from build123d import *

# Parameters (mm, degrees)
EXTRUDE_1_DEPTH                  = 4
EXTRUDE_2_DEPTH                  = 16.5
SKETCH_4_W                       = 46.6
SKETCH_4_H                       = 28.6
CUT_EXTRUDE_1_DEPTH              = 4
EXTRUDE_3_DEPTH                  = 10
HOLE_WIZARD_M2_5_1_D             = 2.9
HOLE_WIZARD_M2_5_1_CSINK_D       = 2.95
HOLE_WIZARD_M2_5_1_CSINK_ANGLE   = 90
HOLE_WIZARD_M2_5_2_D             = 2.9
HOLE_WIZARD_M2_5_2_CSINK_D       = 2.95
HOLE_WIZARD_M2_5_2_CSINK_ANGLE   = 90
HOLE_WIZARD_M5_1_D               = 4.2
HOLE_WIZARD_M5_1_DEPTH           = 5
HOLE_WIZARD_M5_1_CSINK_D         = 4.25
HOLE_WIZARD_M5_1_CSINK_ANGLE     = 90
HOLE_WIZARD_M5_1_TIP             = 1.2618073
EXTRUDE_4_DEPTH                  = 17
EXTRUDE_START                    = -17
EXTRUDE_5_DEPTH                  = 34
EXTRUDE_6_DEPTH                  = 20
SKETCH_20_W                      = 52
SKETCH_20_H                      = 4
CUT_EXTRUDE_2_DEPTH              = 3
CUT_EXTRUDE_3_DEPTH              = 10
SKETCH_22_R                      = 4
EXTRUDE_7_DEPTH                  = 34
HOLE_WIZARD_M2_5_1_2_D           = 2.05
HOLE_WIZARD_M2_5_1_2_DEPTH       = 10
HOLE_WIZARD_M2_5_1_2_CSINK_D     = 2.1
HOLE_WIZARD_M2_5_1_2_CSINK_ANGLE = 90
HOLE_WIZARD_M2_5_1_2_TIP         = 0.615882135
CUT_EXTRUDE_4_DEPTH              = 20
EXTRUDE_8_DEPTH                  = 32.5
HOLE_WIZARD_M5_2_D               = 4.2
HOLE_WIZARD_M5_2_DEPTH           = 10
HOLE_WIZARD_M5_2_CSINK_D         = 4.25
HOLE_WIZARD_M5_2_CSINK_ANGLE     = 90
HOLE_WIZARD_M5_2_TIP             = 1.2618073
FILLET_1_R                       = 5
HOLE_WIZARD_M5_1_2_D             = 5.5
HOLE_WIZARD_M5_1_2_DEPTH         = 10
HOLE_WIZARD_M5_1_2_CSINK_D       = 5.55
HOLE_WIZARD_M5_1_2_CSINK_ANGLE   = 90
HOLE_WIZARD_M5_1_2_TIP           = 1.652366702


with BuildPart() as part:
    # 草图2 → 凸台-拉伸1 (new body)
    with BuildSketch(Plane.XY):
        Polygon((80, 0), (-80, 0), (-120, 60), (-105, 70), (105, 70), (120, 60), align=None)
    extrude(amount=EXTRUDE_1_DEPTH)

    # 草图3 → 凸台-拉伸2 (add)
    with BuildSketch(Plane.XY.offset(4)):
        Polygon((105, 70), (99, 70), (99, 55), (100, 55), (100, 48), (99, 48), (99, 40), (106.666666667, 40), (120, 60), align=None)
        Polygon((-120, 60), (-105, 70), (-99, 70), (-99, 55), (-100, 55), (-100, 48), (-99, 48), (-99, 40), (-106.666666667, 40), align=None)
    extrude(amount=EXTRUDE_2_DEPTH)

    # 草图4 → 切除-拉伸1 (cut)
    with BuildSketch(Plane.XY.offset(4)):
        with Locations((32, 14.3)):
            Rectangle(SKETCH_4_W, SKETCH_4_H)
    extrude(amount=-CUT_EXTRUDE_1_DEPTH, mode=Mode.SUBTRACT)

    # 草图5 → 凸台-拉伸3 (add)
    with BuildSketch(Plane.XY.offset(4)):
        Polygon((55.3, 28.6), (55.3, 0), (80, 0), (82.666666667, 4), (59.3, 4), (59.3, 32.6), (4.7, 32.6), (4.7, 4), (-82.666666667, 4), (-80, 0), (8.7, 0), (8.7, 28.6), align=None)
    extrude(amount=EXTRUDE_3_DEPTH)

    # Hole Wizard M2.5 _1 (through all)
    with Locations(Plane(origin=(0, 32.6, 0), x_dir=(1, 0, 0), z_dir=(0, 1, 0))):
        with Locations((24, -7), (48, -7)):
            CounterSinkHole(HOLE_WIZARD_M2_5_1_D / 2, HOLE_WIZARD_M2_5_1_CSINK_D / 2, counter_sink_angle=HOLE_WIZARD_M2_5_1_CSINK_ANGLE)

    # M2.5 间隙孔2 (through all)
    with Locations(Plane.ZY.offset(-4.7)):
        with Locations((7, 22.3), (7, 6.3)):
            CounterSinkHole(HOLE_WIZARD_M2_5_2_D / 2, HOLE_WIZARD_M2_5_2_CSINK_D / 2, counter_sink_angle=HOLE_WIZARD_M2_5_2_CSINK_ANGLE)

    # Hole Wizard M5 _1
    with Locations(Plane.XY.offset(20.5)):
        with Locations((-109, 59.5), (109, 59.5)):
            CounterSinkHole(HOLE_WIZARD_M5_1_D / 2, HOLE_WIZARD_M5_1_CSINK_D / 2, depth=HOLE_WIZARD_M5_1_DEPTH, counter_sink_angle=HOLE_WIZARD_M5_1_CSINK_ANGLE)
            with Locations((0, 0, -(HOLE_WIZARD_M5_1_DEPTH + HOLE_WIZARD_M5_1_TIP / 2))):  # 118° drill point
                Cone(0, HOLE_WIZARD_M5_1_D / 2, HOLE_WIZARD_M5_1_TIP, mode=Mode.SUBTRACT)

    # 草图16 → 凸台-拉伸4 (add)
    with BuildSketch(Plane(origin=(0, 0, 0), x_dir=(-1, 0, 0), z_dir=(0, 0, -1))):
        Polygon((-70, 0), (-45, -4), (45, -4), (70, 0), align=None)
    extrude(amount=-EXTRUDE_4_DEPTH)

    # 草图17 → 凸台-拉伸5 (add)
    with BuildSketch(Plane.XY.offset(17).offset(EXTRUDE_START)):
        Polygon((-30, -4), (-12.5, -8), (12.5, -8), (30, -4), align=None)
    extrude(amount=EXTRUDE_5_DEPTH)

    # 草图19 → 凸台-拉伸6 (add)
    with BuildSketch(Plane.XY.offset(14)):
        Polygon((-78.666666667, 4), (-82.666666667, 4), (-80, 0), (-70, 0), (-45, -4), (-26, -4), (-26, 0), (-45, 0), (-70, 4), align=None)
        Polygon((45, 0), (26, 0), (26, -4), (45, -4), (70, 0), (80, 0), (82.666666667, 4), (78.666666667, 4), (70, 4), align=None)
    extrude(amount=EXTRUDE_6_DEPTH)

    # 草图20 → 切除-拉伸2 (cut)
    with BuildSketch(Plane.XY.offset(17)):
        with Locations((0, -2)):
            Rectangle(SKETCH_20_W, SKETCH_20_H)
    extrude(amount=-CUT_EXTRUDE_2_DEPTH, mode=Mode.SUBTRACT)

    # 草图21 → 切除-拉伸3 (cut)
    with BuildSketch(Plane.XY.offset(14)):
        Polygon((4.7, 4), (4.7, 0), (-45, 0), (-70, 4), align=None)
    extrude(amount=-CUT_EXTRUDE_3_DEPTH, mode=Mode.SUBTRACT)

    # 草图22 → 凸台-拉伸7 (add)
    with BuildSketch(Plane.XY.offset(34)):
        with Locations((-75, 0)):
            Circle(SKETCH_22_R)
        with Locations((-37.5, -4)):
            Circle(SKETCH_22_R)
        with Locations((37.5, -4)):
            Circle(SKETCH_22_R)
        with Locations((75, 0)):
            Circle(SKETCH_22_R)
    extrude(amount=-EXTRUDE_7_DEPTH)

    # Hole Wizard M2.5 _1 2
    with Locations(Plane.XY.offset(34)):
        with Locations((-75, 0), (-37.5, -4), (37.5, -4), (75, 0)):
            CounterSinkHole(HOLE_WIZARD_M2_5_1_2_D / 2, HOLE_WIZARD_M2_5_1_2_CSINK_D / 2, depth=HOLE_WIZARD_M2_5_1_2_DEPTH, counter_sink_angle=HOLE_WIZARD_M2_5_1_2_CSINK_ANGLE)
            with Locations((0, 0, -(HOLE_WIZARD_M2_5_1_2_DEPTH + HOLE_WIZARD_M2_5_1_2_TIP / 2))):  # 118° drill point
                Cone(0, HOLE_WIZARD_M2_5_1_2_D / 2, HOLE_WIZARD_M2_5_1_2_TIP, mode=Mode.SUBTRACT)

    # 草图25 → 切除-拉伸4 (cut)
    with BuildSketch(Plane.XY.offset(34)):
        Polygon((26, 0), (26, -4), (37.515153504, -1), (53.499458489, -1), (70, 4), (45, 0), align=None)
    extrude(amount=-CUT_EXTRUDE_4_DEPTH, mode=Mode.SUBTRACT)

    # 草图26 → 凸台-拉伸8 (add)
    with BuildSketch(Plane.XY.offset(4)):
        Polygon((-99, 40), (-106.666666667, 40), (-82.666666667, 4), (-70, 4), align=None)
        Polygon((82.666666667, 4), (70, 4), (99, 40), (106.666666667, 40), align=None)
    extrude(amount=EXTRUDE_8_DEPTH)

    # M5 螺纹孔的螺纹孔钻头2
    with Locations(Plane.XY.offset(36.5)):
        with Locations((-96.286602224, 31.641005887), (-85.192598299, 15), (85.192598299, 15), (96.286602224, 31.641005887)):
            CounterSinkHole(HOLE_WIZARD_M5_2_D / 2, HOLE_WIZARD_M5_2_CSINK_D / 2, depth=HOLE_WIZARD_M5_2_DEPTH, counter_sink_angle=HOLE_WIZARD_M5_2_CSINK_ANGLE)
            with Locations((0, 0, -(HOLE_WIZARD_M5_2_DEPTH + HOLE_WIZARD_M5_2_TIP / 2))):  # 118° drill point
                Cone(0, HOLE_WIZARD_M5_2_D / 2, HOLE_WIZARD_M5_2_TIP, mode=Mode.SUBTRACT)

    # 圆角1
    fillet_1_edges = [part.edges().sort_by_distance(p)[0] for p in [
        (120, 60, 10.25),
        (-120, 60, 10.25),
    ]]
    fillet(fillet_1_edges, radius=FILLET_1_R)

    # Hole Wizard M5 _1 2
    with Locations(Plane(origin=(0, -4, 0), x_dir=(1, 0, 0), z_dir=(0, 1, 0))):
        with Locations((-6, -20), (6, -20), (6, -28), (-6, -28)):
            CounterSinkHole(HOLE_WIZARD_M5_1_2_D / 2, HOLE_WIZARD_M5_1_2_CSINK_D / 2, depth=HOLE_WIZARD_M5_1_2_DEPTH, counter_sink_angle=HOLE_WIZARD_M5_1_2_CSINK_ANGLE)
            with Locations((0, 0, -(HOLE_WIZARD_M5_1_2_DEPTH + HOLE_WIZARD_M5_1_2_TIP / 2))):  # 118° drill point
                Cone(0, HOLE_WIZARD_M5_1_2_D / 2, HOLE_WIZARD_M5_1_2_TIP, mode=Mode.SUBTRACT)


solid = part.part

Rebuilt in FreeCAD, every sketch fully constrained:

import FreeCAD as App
import Part
import Sketcher

V = App.Vector


def edges_at(feature, points):
    """Names of the edges that pass closest to the given points."""
    edges = feature.Shape.Edges
    near = lambda p: min(range(len(edges)), key=lambda i: edges[i].distToShape(Part.Vertex(*p))[0])
    return sorted({f"Edge{near(p) + 1}" for p in points})


def add_polygon(sketch, points):
    """Adds a closed chain of lines whose ends are joined by coincident constraints."""
    first, n = sketch.GeometryCount, len(points)
    for a, b in zip(points, points[1:] + points[:1]):
        sketch.addGeometry(Part.LineSegment(App.Vector(*a, 0), App.Vector(*b, 0)), False)
    for i in range(n):
        sketch.addConstraint(Sketcher.Constraint("Coincident", first + i, 2, first + (i + 1) % n, 1))

doc = App.newDocument("Part")
params = doc.addObject("Spreadsheet::Sheet", "Params")
for row, (alias, value) in enumerate([
    ("sketch1_width", "160 mm"),
    ("sketch1_width2", "210 mm"),
    ("pad1_length", "4 mm"),
    ("sketch2_width", "6 mm"),
    ("sketch2_width2", "1 mm"),
    ("sketch2_height", "15 mm"),
    ("sketch2_height2", "7 mm"),
    ("sketch2_height3", "8 mm"),
    ("pad2_length", "16.5 mm"),
    ("sketch3_width", "46.6 mm"),
    ("sketch3_height", "28.6 mm"),
    ("pocket1_length", "4 mm"),
    ("sketch4_width", "24.7 mm"),
    ("sketch4_width2", "54.6 mm"),
    ("sketch4_width3", "88.7 mm"),
    ("sketch4_width4", "46.6 mm"),
    ("sketch4_height", "28.6 mm"),
    ("pad3_length", "10 mm"),
    ("sketch5_diameter", "2.9 mm"),
    ("hole_diameter", "2.9 mm"),
    ("hole_csink_diameter", "2.95 mm"),
    ("sketch6_diameter", "2.9 mm"),
    ("hole2_diameter", "2.9 mm"),
    ("hole2_csink_diameter", "2.95 mm"),
    ("sketch7_diameter", "4.2 mm"),
    ("hole3_diameter", "4.2 mm"),
    ("hole3_depth", "5 mm"),
    ("hole3_csink_diameter", "4.25 mm"),
    ("sketch8_width", "90 mm"),
    ("sketch8_width2", "140 mm"),
    ("pad4_length", "17 mm"),
    ("sketch9_width", "25 mm"),
    ("sketch9_width2", "60 mm"),
    ("pad5_length", "34 mm"),
    ("sketch10_width", "10 mm"),
    ("sketch10_width2", "19 mm"),
    ("sketch10_height", "4 mm"),
    ("pad6_length", "20 mm"),
    ("sketch11_width", "52 mm"),
    ("sketch11_height", "4 mm"),
    ("pocket2_length", "3 mm"),
    ("sketch12_height", "4 mm"),
    ("sketch12_width", "74.7 mm"),
    ("sketch12_width2", "49.7 mm"),
    ("pocket3_length", "10 mm"),
    ("sketch13_diameter", "8 mm"),
    ("pad7_length", "34 mm"),
    ("sketch14_diameter", "2.05 mm"),
    ("hole4_diameter", "2.05 mm"),
    ("hole4_depth", "10 mm"),
    ("hole4_csink_diameter", "2.1 mm"),
    ("sketch15_width", "19 mm"),
    ("sketch15_height", "4 mm"),
    ("pocket4_length", "20 mm"),
    ("pad8_length", "32.5 mm"),
    ("sketch17_diameter", "4.2 mm"),
    ("hole5_diameter", "4.2 mm"),
    ("hole5_depth", "10 mm"),
    ("hole5_csink_diameter", "4.25 mm"),
    ("fillet_radius", "5 mm"),
    ("sketch18_diameter", "5.5 mm"),
    ("hole6_diameter", "5.5 mm"),
    ("hole6_depth", "10 mm"),
    ("hole6_csink_diameter", "5.55 mm"),
], start=1):
    params.set(f"A{row}", alias)
    params.set(f"B{row}", "=" + value)
    params.setAlias(f"B{row}", alias)

body = doc.addObject("PartDesign::Body", "Body")

sketch1 = body.newObject("Sketcher::SketchObject", "Sketch")
sketch1.AttachmentSupport = (doc.getObject("XY_Plane"), [""])
sketch1.MapMode = "FlatFace"
add_polygon(sketch1, [(-80, 0), (80, 0), (120, 60), (105, 70), (-105, 70), (-120, 60)])
sketch1.addConstraint(Sketcher.Constraint("Horizontal", 0))
sketch1.addConstraint(Sketcher.Constraint("Horizontal", 3))
sketch1.addConstraint(Sketcher.Constraint("Symmetric", 0, 2, 5, 2, -1, 1))
sketch1.addConstraint(Sketcher.Constraint("Symmetric", 1, 2, 4, 2, -2))
sketch1.addConstraint(Sketcher.Constraint("Perpendicular", 1, 2))
sketch1.addConstraint(Sketcher.Constraint("Perpendicular", 4, 5))
sketch1.addConstraint(Sketcher.Constraint("DistanceX", 0, 1, 0, 2, 160.0))
sketch1.addConstraint(Sketcher.Constraint("DistanceX", 3, 2, 3, 1, 210.0))
sketch1.addConstraint(Sketcher.Constraint("DistanceX", -1, 1, 1, 2, 120.0))
sketch1.addConstraint(Sketcher.Constraint("DistanceY", -1, 1, 1, 2, 60.0))
sketch1.setExpression("Constraints[12]", "Params.sketch1_width")
sketch1.setExpression("Constraints[13]", "Params.sketch1_width2")
pad1 = body.newObject("PartDesign::Pad", "Pad")
pad1.Profile = sketch1
pad1.setExpression("Length", "Params.pad1_length")

sketch2 = body.newObject("Sketcher::SketchObject", "Sketch001")
sketch2.AttachmentSupport = (doc.getObject("XY_Plane"), [""])
sketch2.MapMode = "FlatFace"
sketch2.AttachmentOffset = App.Placement(V(0, 0, 4), App.Rotation())
add_polygon(sketch2, [(105, 70), (99, 70), (99, 55), (100, 55), (100, 48), (99, 48), (99, 40), (106.666667, 40), (120, 60)])
add_polygon(sketch2, [(-105, 70), (-120, 60), (-106.666667, 40), (-99, 40), (-99, 48), (-100, 48), (-100, 55), (-99, 55), (-99, 70)])
sketch2.addConstraint(Sketcher.Constraint("Horizontal", 0))
sketch2.addConstraint(Sketcher.Constraint("Vertical", 1))
sketch2.addConstraint(Sketcher.Constraint("Horizontal", 2))
sketch2.addConstraint(Sketcher.Constraint("Vertical", 3))
sketch2.addConstraint(Sketcher.Constraint("Horizontal", 4))
sketch2.addConstraint(Sketcher.Constraint("Vertical", 5))
sketch2.addConstraint(Sketcher.Constraint("Horizontal", 6))
sketch2.addConstraint(Sketcher.Constraint("Horizontal", 11))
sketch2.addConstraint(Sketcher.Constraint("Vertical", 12))
sketch2.addConstraint(Sketcher.Constraint("Horizontal", 13))
sketch2.addConstraint(Sketcher.Constraint("Vertical", 14))
sketch2.addConstraint(Sketcher.Constraint("Horizontal", 15))
sketch2.addConstraint(Sketcher.Constraint("Vertical", 16))
sketch2.addConstraint(Sketcher.Constraint("Horizontal", 17))
sketch2.addConstraint(Sketcher.Constraint("Symmetric", 7, 2, 9, 2, -2))
sketch2.addConstraint(Sketcher.Constraint("Symmetric", 6, 2, 10, 2, -2))
sketch2.addConstraint(Sketcher.Constraint("Symmetric", 4, 2, 12, 2, -2))
sketch2.addConstraint(Sketcher.Constraint("Symmetric", 2, 2, 14, 2, -2))
sketch2.addConstraint(Sketcher.Constraint("Symmetric", 0, 2, 16, 2, -2))
sketch2.addConstraint(Sketcher.Constraint("Perpendicular", 7, 8))
sketch2.addConstraint(Sketcher.Constraint("Perpendicular", 9, 10))
sketch2.addConstraint(Sketcher.Constraint("Vertical", 1, 2, 4, 2))
sketch2.addConstraint(Sketcher.Constraint("DistanceX", 0, 2, 0, 1, 6.0))
sketch2.addConstraint(Sketcher.Constraint("DistanceX", 2, 1, 2, 2, 1.0))
sketch2.addConstraint(Sketcher.Constraint("DistanceY", 1, 2, 1, 1, 15.0))
sketch2.addConstraint(Sketcher.Constraint("DistanceY", 3, 2, 3, 1, 7.0))
sketch2.addConstraint(Sketcher.Constraint("DistanceY", 5, 2, 5, 1, 8.0))
sketch2.addConstraint(Sketcher.Constraint("DistanceX", -1, 1, 0, 2, 99.0))
sketch2.addConstraint(Sketcher.Constraint("DistanceY", -1, 1, 0, 2, 70.0))
sketch2.addConstraint(Sketcher.Constraint("DistanceX", -1, 1, 7, 2, 120.0))
sketch2.addConstraint(Sketcher.Constraint("DistanceY", -1, 1, 7, 2, 60.0))
sketch2.setExpression("Constraints[40]", "Params.sketch2_width")
sketch2.setExpression("Constraints[41]", "Params.sketch2_width2")
sketch2.setExpression("Constraints[42]", "Params.sketch2_height")
sketch2.setExpression("Constraints[43]", "Params.sketch2_height2")
sketch2.setExpression("Constraints[44]", "Params.sketch2_height3")
pad2 = body.newObject("PartDesign::Pad", "Pad001")
pad2.Profile = sketch2
pad2.setExpression("Length", "Params.pad2_length")

sketch3 = body.newObject("Sketcher::SketchObject", "Sketch002")
sketch3.AttachmentSupport = (doc.getObject("XY_Plane"), [""])
sketch3.MapMode = "FlatFace"
sketch3.AttachmentOffset = App.Placement(V(0, 0, 4), App.Rotation())
add_polygon(sketch3, [(8.7, 28.6), (8.7, 0), (55.3, 0), (55.3, 28.6)])
sketch3.addConstraint(Sketcher.Constraint("Vertical", 0))
sketch3.addConstraint(Sketcher.Constraint("Horizontal", 1))
sketch3.addConstraint(Sketcher.Constraint("Vertical", 2))
sketch3.addConstraint(Sketcher.Constraint("Horizontal", 3))
sketch3.addConstraint(Sketcher.Constraint("PointOnObject", 0, 2, -1))
sketch3.addConstraint(Sketcher.Constraint("DistanceX", 1, 1, 1, 2, 46.6))
sketch3.addConstraint(Sketcher.Constraint("DistanceY", 0, 2, 0, 1, 28.6))
sketch3.addConstraint(Sketcher.Constraint("DistanceX", -1, 1, 0, 2, 8.7))
sketch3.setExpression("Constraints[9]", "Params.sketch3_width")
sketch3.setExpression("Constraints[10]", "Params.sketch3_height")
pocket1 = body.newObject("PartDesign::Pocket", "Pocket")
pocket1.Profile = sketch3
pocket1.setExpression("Length", "Params.pocket1_length")

sketch4 = body.newObject("Sketcher::SketchObject", "Sketch003")
sketch4.AttachmentSupport = (doc.getObject("XY_Plane"), [""])
sketch4.MapMode = "FlatFace"
sketch4.AttachmentOffset = App.Placement(V(0, 0, 4), App.Rotation())
add_polygon(sketch4, [(55.3, 28.6), (55.3, 0), (80, 0), (82.666667, 4), (59.3, 4), (59.3, 32.6), (4.7, 32.6), (4.7, 4), (-82.666667, 4), (-80, 0), (8.7, 0), (8.7, 28.6)])
sketch4.addConstraint(Sketcher.Constraint("Vertical", 0))
sketch4.addConstraint(Sketcher.Constraint("Horizontal", 1))
sketch4.addConstraint(Sketcher.Constraint("Horizontal", 3))
sketch4.addConstraint(Sketcher.Constraint("Vertical", 4))
sketch4.addConstraint(Sketcher.Constraint("Horizontal", 5))
sketch4.addConstraint(Sketcher.Constraint("Vertical", 6))
sketch4.addConstraint(Sketcher.Constraint("Horizontal", 7))
sketch4.addConstraint(Sketcher.Constraint("Horizontal", 9))
sketch4.addConstraint(Sketcher.Constraint("Vertical", 10))
sketch4.addConstraint(Sketcher.Constraint("Horizontal", 11))
sketch4.addConstraint(Sketcher.Constraint("Symmetric", 1, 2, 8, 2, -1, 1))
sketch4.addConstraint(Sketcher.Constraint("Symmetric", 2, 2, 7, 2, -2))
sketch4.addConstraint(Sketcher.Constraint("PointOnObject", 0, 2, -1))
sketch4.addConstraint(Sketcher.Constraint("Equal", 0, 4))
sketch4.addConstraint(Sketcher.Constraint("DistanceX", 1, 1, 1, 2, 24.7))
sketch4.addConstraint(Sketcher.Constraint("DistanceX", 5, 2, 5, 1, 54.6))
sketch4.addConstraint(Sketcher.Constraint("DistanceX", 9, 1, 9, 2, 88.7))
sketch4.addConstraint(Sketcher.Constraint("DistanceX", 11, 1, 11, 2, 46.6))
sketch4.addConstraint(Sketcher.Constraint("DistanceY", 0, 2, 0, 1, 28.6))
sketch4.addConstraint(Sketcher.Constraint("DistanceY", -1, 1, 2, 2, 4.0))
sketch4.addConstraint(Sketcher.Constraint("DistanceX", 0, 2, 3, 2, 4.0))
sketch4.addConstraint(Sketcher.Constraint("Distance", 2, 4.807402))
sketch4.setExpression("Constraints[26]", "Params.sketch4_width")
sketch4.setExpression("Constraints[27]", "Params.sketch4_width2")
sketch4.setExpression("Constraints[28]", "Params.sketch4_width3")
sketch4.setExpression("Constraints[29]", "Params.sketch4_width4")
sketch4.setExpression("Constraints[30]", "Params.sketch4_height")
pad3 = body.newObject("PartDesign::Pad", "Pad002")
pad3.Profile = sketch4
pad3.setExpression("Length", "Params.pad3_length")

sketch5 = body.newObject("Sketcher::SketchObject", "Sketch004")
sketch5.AttachmentSupport = (doc.getObject("XZ_Plane"), [""])
sketch5.MapMode = "FlatFace"
sketch5.AttachmentOffset = App.Placement(V(0, 0, -32.6), App.Rotation())
sketch5.addGeometry(Part.Circle(V(24, 7, 0), V(0, 0, 1), 1.45), False)
sketch5.addGeometry(Part.Circle(V(48, 7, 0), V(0, 0, 1), 1.45), False)
sketch5.addConstraint(Sketcher.Constraint("Equal", 0, 1))
sketch5.addConstraint(Sketcher.Constraint("Horizontal", 0, 3, 1, 3))
sketch5.addConstraint(Sketcher.Constraint("Diameter", 0, 2.9))
sketch5.addConstraint(Sketcher.Constraint("DistanceX", -1, 1, 0, 3, 24.0))
sketch5.addConstraint(Sketcher.Constraint("DistanceY", -1, 1, 0, 3, 7.0))
sketch5.addConstraint(Sketcher.Constraint("DistanceX", -1, 1, 1, 3, 48.0))
sketch5.setExpression("Constraints[2]", "Params.sketch5_diameter")
doc.recompute()
hole = body.newObject("PartDesign::Hole", "Hole")
hole.Profile = sketch5
hole.ThreadType = "None"
hole.setExpression("Diameter", "Params.hole_diameter")
hole.DepthType = "ThroughAll"
hole.HoleCutType = "Countersink"
hole.setExpression("HoleCutDiameter", "Params.hole_csink_diameter")
hole.HoleCutCountersinkAngle = 90
hole.Reversed = True

sketch6 = body.newObject("Sketcher::SketchObject", "Sketch005")
sketch6.AttachmentSupport = (doc.getObject("YZ_Plane"), [""])
sketch6.MapMode = "FlatFace"
sketch6.AttachmentOffset = App.Placement(V(0, 0, 4.7), App.Rotation())
sketch6.addGeometry(Part.Circle(V(22.3, 7, 0), V(0, 0, 1), 1.45), False)
sketch6.addGeometry(Part.Circle(V(6.3, 7, 0), V(0, 0, 1), 1.45), False)
sketch6.addConstraint(Sketcher.Constraint("Equal", 0, 1))
sketch6.addConstraint(Sketcher.Constraint("Horizontal", 0, 3, 1, 3))
sketch6.addConstraint(Sketcher.Constraint("Diameter", 0, 2.9))
sketch6.addConstraint(Sketcher.Constraint("DistanceY", -1, 1, 0, 3, 7.0))
sketch6.addConstraint(Sketcher.Constraint("DistanceX", 1, 3, 0, 3, 16.0))
sketch6.addConstraint(Sketcher.Constraint("DistanceX", -1, 1, 0, 3, 22.3))
sketch6.setExpression("Constraints[2]", "Params.sketch6_diameter")
doc.recompute()
hole2 = body.newObject("PartDesign::Hole", "Hole001")
hole2.Profile = sketch6
hole2.ThreadType = "None"
hole2.setExpression("Diameter", "Params.hole2_diameter")
hole2.DepthType = "ThroughAll"
hole2.HoleCutType = "Countersink"
hole2.setExpression("HoleCutDiameter", "Params.hole2_csink_diameter")
hole2.HoleCutCountersinkAngle = 90
hole2.Reversed = True

sketch7 = body.newObject("Sketcher::SketchObject", "Sketch006")
sketch7.AttachmentSupport = (doc.getObject("XY_Plane"), [""])
sketch7.MapMode = "FlatFace"
sketch7.AttachmentOffset = App.Placement(V(0, 0, 20.5), App.Rotation())
sketch7.addGeometry(Part.Circle(V(-109, 59.5, 0), V(0, 0, 1), 2.1), False)
sketch7.addGeometry(Part.Circle(V(109, 59.5, 0), V(0, 0, 1), 2.1), False)
sketch7.addConstraint(Sketcher.Constraint("Equal", 0, 1))
sketch7.addConstraint(Sketcher.Constraint("Symmetric", 0, 3, 1, 3, -2))
sketch7.addConstraint(Sketcher.Constraint("Diameter", 0, 4.2))
sketch7.addConstraint(Sketcher.Constraint("DistanceX", 0, 3, -1, 1, 109.0))
sketch7.addConstraint(Sketcher.Constraint("DistanceY", -1, 1, 0, 3, 59.5))
sketch7.setExpression("Constraints[2]", "Params.sketch7_diameter")
doc.recompute()
hole3 = body.newObject("PartDesign::Hole", "Hole002")
hole3.Profile = sketch7
hole3.ThreadType = "None"
hole3.setExpression("Diameter", "Params.hole3_diameter")
hole3.DepthType = "Dimension"
hole3.setExpression("Depth", "Params.hole3_depth")
hole3.DrillPoint = "Angled"
hole3.DrillPointAngle = 118
hole3.HoleCutType = "Countersink"
hole3.setExpression("HoleCutDiameter", "Params.hole3_csink_diameter")
hole3.HoleCutCountersinkAngle = 90

sketch8 = body.newObject("Sketcher::SketchObject", "Sketch007")
sketch8.AttachmentSupport = (doc.getObject("XY_Plane"), [""])
sketch8.MapMode = "FlatFace"
add_polygon(sketch8, [(70, 0), (45, -4), (-45, -4), (-70, 0)])
sketch8.addConstraint(Sketcher.Constraint("Horizontal", 1))
sketch8.addConstraint(Sketcher.Constraint("Horizontal", 3))
sketch8.addConstraint(Sketcher.Constraint("Symmetric", 2, 2, 3, 2, -1, 1))
sketch8.addConstraint(Sketcher.Constraint("Equal", 0, 2))
sketch8.addConstraint(Sketcher.Constraint("DistanceX", 1, 2, 1, 1, 90.0))
sketch8.addConstraint(Sketcher.Constraint("DistanceX", 3, 1, 3, 2, 140.0))
sketch8.addConstraint(Sketcher.Constraint("DistanceY", 0, 2, -1, 1, 4.0))
sketch8.setExpression("Constraints[8]", "Params.sketch8_width")
sketch8.setExpression("Constraints[9]", "Params.sketch8_width2")
pad4 = body.newObject("PartDesign::Pad", "Pad003")
pad4.Profile = sketch8
pad4.setExpression("Length", "Params.pad4_length")

sketch9 = body.newObject("Sketcher::SketchObject", "Sketch008")
sketch9.AttachmentSupport = (doc.getObject("XY_Plane"), [""])
sketch9.MapMode = "FlatFace"
add_polygon(sketch9, [(-30, -4), (-12.5, -8), (12.5, -8), (30, -4)])
sketch9.addConstraint(Sketcher.Constraint("Horizontal", 1))
sketch9.addConstraint(Sketcher.Constraint("Horizontal", 3))
sketch9.addConstraint(Sketcher.Constraint("Equal", 0, 2))
sketch9.addConstraint(Sketcher.Constraint("DistanceX", 1, 1, 1, 2, 25.0))
sketch9.addConstraint(Sketcher.Constraint("DistanceX", 3, 2, 3, 1, 60.0))
sketch9.addConstraint(Sketcher.Constraint("DistanceY", 0, 2, -1, 1, 8.0))
sketch9.addConstraint(Sketcher.Constraint("DistanceX", -1, 1, 2, 2, 30.0))
sketch9.addConstraint(Sketcher.Constraint("DistanceY", 2, 2, -1, 1, 4.0))
sketch9.setExpression("Constraints[7]", "Params.sketch9_width")
sketch9.setExpression("Constraints[8]", "Params.sketch9_width2")
pad5 = body.newObject("PartDesign::Pad", "Pad004")
pad5.Profile = sketch9
pad5.setExpression("Length", "Params.pad5_length")

sketch10 = body.newObject("Sketcher::SketchObject", "Sketch009")
sketch10.AttachmentSupport = (doc.getObject("XY_Plane"), [""])
sketch10.MapMode = "FlatFace"
sketch10.AttachmentOffset = App.Placement(V(0, 0, 14), App.Rotation())
add_polygon(sketch10, [(-82.666667, 4), (-80, 0), (-70, 0), (-45, -4), (-26, -4), (-26, 0), (-45, 0), (-70, 4)])
add_polygon(sketch10, [(45, 0), (26, 0), (26, -4), (45, -4), (70, 0), (80, 0), (82.666667, 4), (70, 4)])
sketch10.addConstraint(Sketcher.Constraint("Horizontal", 1))
sketch10.addConstraint(Sketcher.Constraint("Horizontal", 3))
sketch10.addConstraint(Sketcher.Constraint("Vertical", 4))
sketch10.addConstraint(Sketcher.Constraint("Horizontal", 5))
sketch10.addConstraint(Sketcher.Constraint("Horizontal", 7))
sketch10.addConstraint(Sketcher.Constraint("Horizontal", 8))
sketch10.addConstraint(Sketcher.Constraint("Vertical", 9))
sketch10.addConstraint(Sketcher.Constraint("Horizontal", 10))
sketch10.addConstraint(Sketcher.Constraint("Horizontal", 12))
sketch10.addConstraint(Sketcher.Constraint("Horizontal", 14))
sketch10.addConstraint(Sketcher.Constraint("Symmetric", 4, 2, 8, 2, -1, 1))
sketch10.addConstraint(Sketcher.Constraint("Symmetric", 1, 2, 11, 2, -1, 1))
sketch10.addConstraint(Sketcher.Constraint("Symmetric", 2, 2, 10, 2, -2))
sketch10.addConstraint(Sketcher.Constraint("Symmetric", 0, 2, 12, 2, -2))
sketch10.addConstraint(Sketcher.Constraint("Symmetric", 7, 2, 13, 2, -2))
sketch10.addConstraint(Sketcher.Constraint("Symmetric", 5, 2, 15, 2, -2))
sketch10.addConstraint(Sketcher.Constraint("Parallel", 2, 6))
sketch10.addConstraint(Sketcher.Constraint("Parallel", 11, 15))
sketch10.addConstraint(Sketcher.Constraint("Vertical", 2, 2, 5, 2))
sketch10.addConstraint(Sketcher.Constraint("Vertical", 1, 2, 6, 2))
sketch10.addConstraint(Sketcher.Constraint("DistanceX", 1, 1, 1, 2, 10.0))
sketch10.addConstraint(Sketcher.Constraint("DistanceX", 3, 1, 3, 2, 19.0))
sketch10.addConstraint(Sketcher.Constraint("DistanceY", 4, 1, 4, 2, 4.0))
sketch10.addConstraint(Sketcher.Constraint("DistanceX", 0, 2, -1, 1, 80.0))
sketch10.addConstraint(Sketcher.Constraint("DistanceX", 2, 2, -1, 1, 45.0))
sketch10.addConstraint(Sketcher.Constraint("Distance", 0, 4.807402))
sketch10.setExpression("Constraints[36]", "Params.sketch10_width")
sketch10.setExpression("Constraints[37]", "Params.sketch10_width2")
sketch10.setExpression("Constraints[38]", "Params.sketch10_height")
pad6 = body.newObject("PartDesign::Pad", "Pad005")
pad6.Profile = sketch10
pad6.setExpression("Length", "Params.pad6_length")

sketch11 = body.newObject("Sketcher::SketchObject", "Sketch010")
sketch11.AttachmentSupport = (doc.getObject("XY_Plane"), [""])
sketch11.MapMode = "FlatFace"
sketch11.AttachmentOffset = App.Placement(V(0, 0, 17), App.Rotation())
add_polygon(sketch11, [(-26, 0), (-26, -4), (26, -4), (26, 0)])
sketch11.addConstraint(Sketcher.Constraint("Vertical", 0))
sketch11.addConstraint(Sketcher.Constraint("Horizontal", 1))
sketch11.addConstraint(Sketcher.Constraint("Vertical", 2))
sketch11.addConstraint(Sketcher.Constraint("Horizontal", 3))
sketch11.addConstraint(Sketcher.Constraint("Symmetric", 2, 2, 3, 2, -1, 1))
sketch11.addConstraint(Sketcher.Constraint("DistanceX", 1, 1, 1, 2, 52.0))
sketch11.addConstraint(Sketcher.Constraint("DistanceY", 0, 2, 0, 1, 4.0))
sketch11.setExpression("Constraints[9]", "Params.sketch11_width")
sketch11.setExpression("Constraints[10]", "Params.sketch11_height")
pocket2 = body.newObject("PartDesign::Pocket", "Pocket001")
pocket2.Profile = sketch11
pocket2.setExpression("Length", "Params.pocket2_length")

sketch12 = body.newObject("Sketcher::SketchObject", "Sketch011")
sketch12.AttachmentSupport = (doc.getObject("XY_Plane"), [""])
sketch12.MapMode = "FlatFace"
sketch12.AttachmentOffset = App.Placement(V(0, 0, 14), App.Rotation())
add_polygon(sketch12, [(4.7, 0), (4.7, 4), (-70, 4), (-45, 0)])
sketch12.addConstraint(Sketcher.Constraint("Vertical", 0))
sketch12.addConstraint(Sketcher.Constraint("Horizontal", 1))
sketch12.addConstraint(Sketcher.Constraint("Horizontal", 3))
sketch12.addConstraint(Sketcher.Constraint("PointOnObject", 2, 2, -1))
sketch12.addConstraint(Sketcher.Constraint("DistanceY", 0, 1, 0, 2, 4.0))
sketch12.addConstraint(Sketcher.Constraint("DistanceX", 1, 2, 1, 1, 74.7))
sketch12.addConstraint(Sketcher.Constraint("DistanceX", 3, 1, 3, 2, 49.7))
sketch12.addConstraint(Sketcher.Constraint("DistanceX", 1, 2, -1, 1, 70.0))
sketch12.setExpression("Constraints[8]", "Params.sketch12_height")
sketch12.setExpression("Constraints[9]", "Params.sketch12_width")
sketch12.setExpression("Constraints[10]", "Params.sketch12_width2")
pocket3 = body.newObject("PartDesign::Pocket", "Pocket002")
pocket3.Profile = sketch12
pocket3.setExpression("Length", "Params.pocket3_length")

sketch13 = body.newObject("Sketcher::SketchObject", "Sketch012")
sketch13.AttachmentSupport = (doc.getObject("XY_Plane"), [""])
sketch13.MapMode = "FlatFace"
sketch13.AttachmentOffset = App.Placement(V(0, 0, 34), App.Rotation())
sketch13.addGeometry(Part.Circle(V(-75, 0, 0), V(0, 0, 1), 4), False)
sketch13.addGeometry(Part.Circle(V(-37.5, -4, 0), V(0, 0, 1), 4), False)
sketch13.addGeometry(Part.Circle(V(37.5, -4, 0), V(0, 0, 1), 4), False)
sketch13.addGeometry(Part.Circle(V(75, 0, 0), V(0, 0, 1), 4), False)
sketch13.addConstraint(Sketcher.Constraint("Equal", 0, 1))
sketch13.addConstraint(Sketcher.Constraint("Equal", 1, 2))
sketch13.addConstraint(Sketcher.Constraint("Equal", 2, 3))
sketch13.addConstraint(Sketcher.Constraint("Symmetric", 0, 3, 3, 3, -1, 1))
sketch13.addConstraint(Sketcher.Constraint("Symmetric", 1, 3, 2, 3, -2))
sketch13.addConstraint(Sketcher.Constraint("PointOnObject", 0, 3, -1))
sketch13.addConstraint(Sketcher.Constraint("Diameter", 0, 8.0))
sketch13.addConstraint(Sketcher.Constraint("DistanceX", 0, 3, -1, 1, 75.0))
sketch13.addConstraint(Sketcher.Constraint("DistanceY", 1, 3, -1, 1, 4.0))
sketch13.addConstraint(Sketcher.Constraint("DistanceX", 1, 3, 2, 3, 75.0))
sketch13.setExpression("Constraints[6]", "Params.sketch13_diameter")
pad7 = body.newObject("PartDesign::Pad", "Pad006")
pad7.Profile = sketch13
pad7.setExpression("Length", "Params.pad7_length")
pad7.Reversed = True

sketch14 = body.newObject("Sketcher::SketchObject", "Sketch013")
sketch14.AttachmentSupport = (doc.getObject("XY_Plane"), [""])
sketch14.MapMode = "FlatFace"
sketch14.AttachmentOffset = App.Placement(V(0, 0, 34), App.Rotation())
sketch14.addGeometry(Part.Circle(V(-75, 0, 0), V(0, 0, 1), 1.025), False)
sketch14.addGeometry(Part.Circle(V(-37.5, -4, 0), V(0, 0, 1), 1.025), False)
sketch14.addGeometry(Part.Circle(V(37.5, -4, 0), V(0, 0, 1), 1.025), False)
sketch14.addGeometry(Part.Circle(V(75, 0, 0), V(0, 0, 1), 1.025), False)
sketch14.addConstraint(Sketcher.Constraint("Equal", 0, 1))
sketch14.addConstraint(Sketcher.Constraint("Equal", 1, 2))
sketch14.addConstraint(Sketcher.Constraint("Equal", 2, 3))
sketch14.addConstraint(Sketcher.Constraint("Symmetric", 0, 3, 3, 3, -1, 1))
sketch14.addConstraint(Sketcher.Constraint("Symmetric", 1, 3, 2, 3, -2))
sketch14.addConstraint(Sketcher.Constraint("PointOnObject", 0, 3, -1))
sketch14.addConstraint(Sketcher.Constraint("Diameter", 0, 2.05))
sketch14.addConstraint(Sketcher.Constraint("DistanceX", 0, 3, -1, 1, 75.0))
sketch14.addConstraint(Sketcher.Constraint("DistanceY", 1, 3, -1, 1, 4.0))
sketch14.addConstraint(Sketcher.Constraint("DistanceX", 1, 3, 2, 3, 75.0))
sketch14.setExpression("Constraints[6]", "Params.sketch14_diameter")
doc.recompute()
hole4 = body.newObject("PartDesign::Hole", "Hole003")
hole4.Profile = sketch14
hole4.ThreadType = "None"
hole4.setExpression("Diameter", "Params.hole4_diameter")
hole4.DepthType = "Dimension"
hole4.setExpression("Depth", "Params.hole4_depth")
hole4.DrillPoint = "Angled"
hole4.DrillPointAngle = 118
hole4.HoleCutType = "Countersink"
hole4.setExpression("HoleCutDiameter", "Params.hole4_csink_diameter")
hole4.HoleCutCountersinkAngle = 90

sketch15 = body.newObject("Sketcher::SketchObject", "Sketch014")
sketch15.AttachmentSupport = (doc.getObject("XY_Plane"), [""])
sketch15.MapMode = "FlatFace"
sketch15.AttachmentOffset = App.Placement(V(0, 0, 34), App.Rotation())
add_polygon(sketch15, [(26, 0), (26, -4), (37.515154, -1), (53.499458, -1), (70, 4), (45, 0)])
sketch15.addConstraint(Sketcher.Constraint("Vertical", 0))
sketch15.addConstraint(Sketcher.Constraint("Horizontal", 2))
sketch15.addConstraint(Sketcher.Constraint("Horizontal", 5))
sketch15.addConstraint(Sketcher.Constraint("PointOnObject", 4, 2, -1))
sketch15.addConstraint(Sketcher.Constraint("DistanceX", 5, 2, 5, 1, 19.0))
sketch15.addConstraint(Sketcher.Constraint("DistanceY", 0, 2, 0, 1, 4.0))
sketch15.addConstraint(Sketcher.Constraint("DistanceX", -1, 1, 0, 2, 26.0))
sketch15.addConstraint(Sketcher.Constraint("DistanceY", 1, 2, -1, 1, 1.0))
sketch15.addConstraint(Sketcher.Constraint("DistanceX", -1, 1, 3, 2, 70.0))
sketch15.addConstraint(Sketcher.Constraint("DistanceY", -1, 1, 3, 2, 4.0))
sketch15.addConstraint(Sketcher.Constraint("DistanceX", 2, 1, 2, 2, 15.984305))
sketch15.addConstraint(Sketcher.Constraint("DistanceX", -1, 1, 2, 2, 53.499458))
sketch15.setExpression("Constraints[10]", "Params.sketch15_width")
sketch15.setExpression("Constraints[11]", "Params.sketch15_height")
pocket4 = body.newObject("PartDesign::Pocket", "Pocket003")
pocket4.Profile = sketch15
pocket4.setExpression("Length", "Params.pocket4_length")

sketch16 = body.newObject("Sketcher::SketchObject", "Sketch015")
sketch16.AttachmentSupport = (doc.getObject("XY_Plane"), [""])
sketch16.MapMode = "FlatFace"
sketch16.AttachmentOffset = App.Placement(V(0, 0, 4), App.Rotation())
add_polygon(sketch16, [(-99, 40), (-106.666667, 40), (-82.666667, 4), (-70, 4)])
add_polygon(sketch16, [(70, 4), (82.666667, 4), (106.666667, 40), (99, 40)])
sketch16.addConstraint(Sketcher.Constraint("Horizontal", 0))
sketch16.addConstraint(Sketcher.Constraint("Horizontal", 2))
sketch16.addConstraint(Sketcher.Constraint("Horizontal", 4))
sketch16.addConstraint(Sketcher.Constraint("Horizontal", 6))
sketch16.addConstraint(Sketcher.Constraint("Symmetric", 1, 2, 4, 2, -2))
sketch16.addConstraint(Sketcher.Constraint("Symmetric", 0, 2, 5, 2, -2))
sketch16.addConstraint(Sketcher.Constraint("Equal", 2, 4))
sketch16.addConstraint(Sketcher.Constraint("Equal", 0, 6))
sketch16.addConstraint(Sketcher.Constraint("DistanceY", -1, 1, 0, 2, 40.0))
sketch16.addConstraint(Sketcher.Constraint("DistanceY", -1, 1, 1, 2, 4.0))
sketch16.addConstraint(Sketcher.Constraint("DistanceX", 2, 2, -1, 1, 70.0))
sketch16.addConstraint(Sketcher.Constraint("DistanceX", 3, 2, -1, 1, 99.0))
sketch16.addConstraint(Sketcher.Constraint("DistanceX", 0, 2, 1, 2, 24.0))
sketch16.addConstraint(Sketcher.Constraint("DistanceX", 0, 2, 0, 1, 7.666667))
pad8 = body.newObject("PartDesign::Pad", "Pad007")
pad8.Profile = sketch16
pad8.setExpression("Length", "Params.pad8_length")

sketch17 = body.newObject("Sketcher::SketchObject", "Sketch016")
sketch17.AttachmentSupport = (doc.getObject("XY_Plane"), [""])
sketch17.MapMode = "FlatFace"
sketch17.AttachmentOffset = App.Placement(V(0, 0, 36.5), App.Rotation())
sketch17.addGeometry(Part.Circle(V(-96.286602, 31.641006, 0), V(0, 0, 1), 2.1), False)
sketch17.addGeometry(Part.Circle(V(-85.192598, 15, 0), V(0, 0, 1), 2.1), False)
sketch17.addGeometry(Part.Circle(V(85.192598, 15, 0), V(0, 0, 1), 2.1), False)
sketch17.addGeometry(Part.Circle(V(96.286602, 31.641006, 0), V(0, 0, 1), 2.1), False)
sketch17.addConstraint(Sketcher.Constraint("Equal", 0, 1))
sketch17.addConstraint(Sketcher.Constraint("Equal", 1, 2))
sketch17.addConstraint(Sketcher.Constraint("Equal", 2, 3))
sketch17.addConstraint(Sketcher.Constraint("Symmetric", 1, 3, 2, 3, -2))
sketch17.addConstraint(Sketcher.Constraint("Symmetric", 0, 3, 3, 3, -2))
sketch17.addConstraint(Sketcher.Constraint("Diameter", 0, 4.2))
sketch17.addConstraint(Sketcher.Constraint("DistanceY", -1, 1, 1, 3, 15.0))
sketch17.addConstraint(Sketcher.Constraint("DistanceX", 1, 3, -1, 1, 85.192598))
sketch17.addConstraint(Sketcher.Constraint("DistanceX", 0, 3, 2, 3, 181.479201))
sketch17.addConstraint(Sketcher.Constraint("DistanceY", -1, 1, 0, 3, 31.641006))
sketch17.setExpression("Constraints[5]", "Params.sketch17_diameter")
doc.recompute()
hole5 = body.newObject("PartDesign::Hole", "Hole004")
hole5.Profile = sketch17
hole5.ThreadType = "None"
hole5.setExpression("Diameter", "Params.hole5_diameter")
hole5.DepthType = "Dimension"
hole5.setExpression("Depth", "Params.hole5_depth")
hole5.DrillPoint = "Angled"
hole5.DrillPointAngle = 118
hole5.HoleCutType = "Countersink"
hole5.setExpression("HoleCutDiameter", "Params.hole5_csink_diameter")
hole5.HoleCutCountersinkAngle = 90
doc.recompute()

fillet = body.newObject("PartDesign::Fillet", "Fillet")
fillet.Base = (hole5, edges_at(hole5, [(120, 60, 12.25), (-120, 60, 12.25)]))
fillet.setExpression("Radius", "Params.fillet_radius")

sketch18 = body.newObject("Sketcher::SketchObject", "Sketch017")
sketch18.AttachmentSupport = (doc.getObject("XZ_Plane"), [""])
sketch18.MapMode = "FlatFace"
sketch18.AttachmentOffset = App.Placement(V(0, 0, 4), App.Rotation())
sketch18.addGeometry(Part.Circle(V(-6, 20, 0), V(0, 0, 1), 2.75), False)
sketch18.addGeometry(Part.Circle(V(6, 20, 0), V(0, 0, 1), 2.75), False)
sketch18.addGeometry(Part.Circle(V(6, 28, 0), V(0, 0, 1), 2.75), False)
sketch18.addGeometry(Part.Circle(V(-6, 28, 0), V(0, 0, 1), 2.75), False)
sketch18.addConstraint(Sketcher.Constraint("Equal", 0, 1))
sketch18.addConstraint(Sketcher.Constraint("Equal", 1, 2))
sketch18.addConstraint(Sketcher.Constraint("Equal", 2, 3))
sketch18.addConstraint(Sketcher.Constraint("Symmetric", 0, 3, 1, 3, -2))
sketch18.addConstraint(Sketcher.Constraint("Symmetric", 2, 3, 3, 3, -2))
sketch18.addConstraint(Sketcher.Constraint("Vertical", 1, 3, 2, 3))
sketch18.addConstraint(Sketcher.Constraint("Diameter", 0, 5.5))
sketch18.addConstraint(Sketcher.Constraint("DistanceX", 0, 3, -1, 1, 6.0))
sketch18.addConstraint(Sketcher.Constraint("DistanceY", -1, 1, 0, 3, 20.0))
sketch18.addConstraint(Sketcher.Constraint("DistanceY", -1, 1, 2, 3, 28.0))
sketch18.setExpression("Constraints[6]", "Params.sketch18_diameter")
doc.recompute()
hole6 = body.newObject("PartDesign::Hole", "Hole005")
hole6.Profile = sketch18
hole6.ThreadType = "None"
hole6.setExpression("Diameter", "Params.hole6_diameter")
hole6.DepthType = "Dimension"
hole6.setExpression("Depth", "Params.hole6_depth")
hole6.DrillPoint = "Angled"
hole6.DrillPointAngle = 118
hole6.HoleCutType = "Countersink"
hole6.setExpression("HoleCutDiameter", "Params.hole6_csink_diameter")
hole6.HoleCutCountersinkAngle = 90
hole6.Reversed = True

doc.recompute()
